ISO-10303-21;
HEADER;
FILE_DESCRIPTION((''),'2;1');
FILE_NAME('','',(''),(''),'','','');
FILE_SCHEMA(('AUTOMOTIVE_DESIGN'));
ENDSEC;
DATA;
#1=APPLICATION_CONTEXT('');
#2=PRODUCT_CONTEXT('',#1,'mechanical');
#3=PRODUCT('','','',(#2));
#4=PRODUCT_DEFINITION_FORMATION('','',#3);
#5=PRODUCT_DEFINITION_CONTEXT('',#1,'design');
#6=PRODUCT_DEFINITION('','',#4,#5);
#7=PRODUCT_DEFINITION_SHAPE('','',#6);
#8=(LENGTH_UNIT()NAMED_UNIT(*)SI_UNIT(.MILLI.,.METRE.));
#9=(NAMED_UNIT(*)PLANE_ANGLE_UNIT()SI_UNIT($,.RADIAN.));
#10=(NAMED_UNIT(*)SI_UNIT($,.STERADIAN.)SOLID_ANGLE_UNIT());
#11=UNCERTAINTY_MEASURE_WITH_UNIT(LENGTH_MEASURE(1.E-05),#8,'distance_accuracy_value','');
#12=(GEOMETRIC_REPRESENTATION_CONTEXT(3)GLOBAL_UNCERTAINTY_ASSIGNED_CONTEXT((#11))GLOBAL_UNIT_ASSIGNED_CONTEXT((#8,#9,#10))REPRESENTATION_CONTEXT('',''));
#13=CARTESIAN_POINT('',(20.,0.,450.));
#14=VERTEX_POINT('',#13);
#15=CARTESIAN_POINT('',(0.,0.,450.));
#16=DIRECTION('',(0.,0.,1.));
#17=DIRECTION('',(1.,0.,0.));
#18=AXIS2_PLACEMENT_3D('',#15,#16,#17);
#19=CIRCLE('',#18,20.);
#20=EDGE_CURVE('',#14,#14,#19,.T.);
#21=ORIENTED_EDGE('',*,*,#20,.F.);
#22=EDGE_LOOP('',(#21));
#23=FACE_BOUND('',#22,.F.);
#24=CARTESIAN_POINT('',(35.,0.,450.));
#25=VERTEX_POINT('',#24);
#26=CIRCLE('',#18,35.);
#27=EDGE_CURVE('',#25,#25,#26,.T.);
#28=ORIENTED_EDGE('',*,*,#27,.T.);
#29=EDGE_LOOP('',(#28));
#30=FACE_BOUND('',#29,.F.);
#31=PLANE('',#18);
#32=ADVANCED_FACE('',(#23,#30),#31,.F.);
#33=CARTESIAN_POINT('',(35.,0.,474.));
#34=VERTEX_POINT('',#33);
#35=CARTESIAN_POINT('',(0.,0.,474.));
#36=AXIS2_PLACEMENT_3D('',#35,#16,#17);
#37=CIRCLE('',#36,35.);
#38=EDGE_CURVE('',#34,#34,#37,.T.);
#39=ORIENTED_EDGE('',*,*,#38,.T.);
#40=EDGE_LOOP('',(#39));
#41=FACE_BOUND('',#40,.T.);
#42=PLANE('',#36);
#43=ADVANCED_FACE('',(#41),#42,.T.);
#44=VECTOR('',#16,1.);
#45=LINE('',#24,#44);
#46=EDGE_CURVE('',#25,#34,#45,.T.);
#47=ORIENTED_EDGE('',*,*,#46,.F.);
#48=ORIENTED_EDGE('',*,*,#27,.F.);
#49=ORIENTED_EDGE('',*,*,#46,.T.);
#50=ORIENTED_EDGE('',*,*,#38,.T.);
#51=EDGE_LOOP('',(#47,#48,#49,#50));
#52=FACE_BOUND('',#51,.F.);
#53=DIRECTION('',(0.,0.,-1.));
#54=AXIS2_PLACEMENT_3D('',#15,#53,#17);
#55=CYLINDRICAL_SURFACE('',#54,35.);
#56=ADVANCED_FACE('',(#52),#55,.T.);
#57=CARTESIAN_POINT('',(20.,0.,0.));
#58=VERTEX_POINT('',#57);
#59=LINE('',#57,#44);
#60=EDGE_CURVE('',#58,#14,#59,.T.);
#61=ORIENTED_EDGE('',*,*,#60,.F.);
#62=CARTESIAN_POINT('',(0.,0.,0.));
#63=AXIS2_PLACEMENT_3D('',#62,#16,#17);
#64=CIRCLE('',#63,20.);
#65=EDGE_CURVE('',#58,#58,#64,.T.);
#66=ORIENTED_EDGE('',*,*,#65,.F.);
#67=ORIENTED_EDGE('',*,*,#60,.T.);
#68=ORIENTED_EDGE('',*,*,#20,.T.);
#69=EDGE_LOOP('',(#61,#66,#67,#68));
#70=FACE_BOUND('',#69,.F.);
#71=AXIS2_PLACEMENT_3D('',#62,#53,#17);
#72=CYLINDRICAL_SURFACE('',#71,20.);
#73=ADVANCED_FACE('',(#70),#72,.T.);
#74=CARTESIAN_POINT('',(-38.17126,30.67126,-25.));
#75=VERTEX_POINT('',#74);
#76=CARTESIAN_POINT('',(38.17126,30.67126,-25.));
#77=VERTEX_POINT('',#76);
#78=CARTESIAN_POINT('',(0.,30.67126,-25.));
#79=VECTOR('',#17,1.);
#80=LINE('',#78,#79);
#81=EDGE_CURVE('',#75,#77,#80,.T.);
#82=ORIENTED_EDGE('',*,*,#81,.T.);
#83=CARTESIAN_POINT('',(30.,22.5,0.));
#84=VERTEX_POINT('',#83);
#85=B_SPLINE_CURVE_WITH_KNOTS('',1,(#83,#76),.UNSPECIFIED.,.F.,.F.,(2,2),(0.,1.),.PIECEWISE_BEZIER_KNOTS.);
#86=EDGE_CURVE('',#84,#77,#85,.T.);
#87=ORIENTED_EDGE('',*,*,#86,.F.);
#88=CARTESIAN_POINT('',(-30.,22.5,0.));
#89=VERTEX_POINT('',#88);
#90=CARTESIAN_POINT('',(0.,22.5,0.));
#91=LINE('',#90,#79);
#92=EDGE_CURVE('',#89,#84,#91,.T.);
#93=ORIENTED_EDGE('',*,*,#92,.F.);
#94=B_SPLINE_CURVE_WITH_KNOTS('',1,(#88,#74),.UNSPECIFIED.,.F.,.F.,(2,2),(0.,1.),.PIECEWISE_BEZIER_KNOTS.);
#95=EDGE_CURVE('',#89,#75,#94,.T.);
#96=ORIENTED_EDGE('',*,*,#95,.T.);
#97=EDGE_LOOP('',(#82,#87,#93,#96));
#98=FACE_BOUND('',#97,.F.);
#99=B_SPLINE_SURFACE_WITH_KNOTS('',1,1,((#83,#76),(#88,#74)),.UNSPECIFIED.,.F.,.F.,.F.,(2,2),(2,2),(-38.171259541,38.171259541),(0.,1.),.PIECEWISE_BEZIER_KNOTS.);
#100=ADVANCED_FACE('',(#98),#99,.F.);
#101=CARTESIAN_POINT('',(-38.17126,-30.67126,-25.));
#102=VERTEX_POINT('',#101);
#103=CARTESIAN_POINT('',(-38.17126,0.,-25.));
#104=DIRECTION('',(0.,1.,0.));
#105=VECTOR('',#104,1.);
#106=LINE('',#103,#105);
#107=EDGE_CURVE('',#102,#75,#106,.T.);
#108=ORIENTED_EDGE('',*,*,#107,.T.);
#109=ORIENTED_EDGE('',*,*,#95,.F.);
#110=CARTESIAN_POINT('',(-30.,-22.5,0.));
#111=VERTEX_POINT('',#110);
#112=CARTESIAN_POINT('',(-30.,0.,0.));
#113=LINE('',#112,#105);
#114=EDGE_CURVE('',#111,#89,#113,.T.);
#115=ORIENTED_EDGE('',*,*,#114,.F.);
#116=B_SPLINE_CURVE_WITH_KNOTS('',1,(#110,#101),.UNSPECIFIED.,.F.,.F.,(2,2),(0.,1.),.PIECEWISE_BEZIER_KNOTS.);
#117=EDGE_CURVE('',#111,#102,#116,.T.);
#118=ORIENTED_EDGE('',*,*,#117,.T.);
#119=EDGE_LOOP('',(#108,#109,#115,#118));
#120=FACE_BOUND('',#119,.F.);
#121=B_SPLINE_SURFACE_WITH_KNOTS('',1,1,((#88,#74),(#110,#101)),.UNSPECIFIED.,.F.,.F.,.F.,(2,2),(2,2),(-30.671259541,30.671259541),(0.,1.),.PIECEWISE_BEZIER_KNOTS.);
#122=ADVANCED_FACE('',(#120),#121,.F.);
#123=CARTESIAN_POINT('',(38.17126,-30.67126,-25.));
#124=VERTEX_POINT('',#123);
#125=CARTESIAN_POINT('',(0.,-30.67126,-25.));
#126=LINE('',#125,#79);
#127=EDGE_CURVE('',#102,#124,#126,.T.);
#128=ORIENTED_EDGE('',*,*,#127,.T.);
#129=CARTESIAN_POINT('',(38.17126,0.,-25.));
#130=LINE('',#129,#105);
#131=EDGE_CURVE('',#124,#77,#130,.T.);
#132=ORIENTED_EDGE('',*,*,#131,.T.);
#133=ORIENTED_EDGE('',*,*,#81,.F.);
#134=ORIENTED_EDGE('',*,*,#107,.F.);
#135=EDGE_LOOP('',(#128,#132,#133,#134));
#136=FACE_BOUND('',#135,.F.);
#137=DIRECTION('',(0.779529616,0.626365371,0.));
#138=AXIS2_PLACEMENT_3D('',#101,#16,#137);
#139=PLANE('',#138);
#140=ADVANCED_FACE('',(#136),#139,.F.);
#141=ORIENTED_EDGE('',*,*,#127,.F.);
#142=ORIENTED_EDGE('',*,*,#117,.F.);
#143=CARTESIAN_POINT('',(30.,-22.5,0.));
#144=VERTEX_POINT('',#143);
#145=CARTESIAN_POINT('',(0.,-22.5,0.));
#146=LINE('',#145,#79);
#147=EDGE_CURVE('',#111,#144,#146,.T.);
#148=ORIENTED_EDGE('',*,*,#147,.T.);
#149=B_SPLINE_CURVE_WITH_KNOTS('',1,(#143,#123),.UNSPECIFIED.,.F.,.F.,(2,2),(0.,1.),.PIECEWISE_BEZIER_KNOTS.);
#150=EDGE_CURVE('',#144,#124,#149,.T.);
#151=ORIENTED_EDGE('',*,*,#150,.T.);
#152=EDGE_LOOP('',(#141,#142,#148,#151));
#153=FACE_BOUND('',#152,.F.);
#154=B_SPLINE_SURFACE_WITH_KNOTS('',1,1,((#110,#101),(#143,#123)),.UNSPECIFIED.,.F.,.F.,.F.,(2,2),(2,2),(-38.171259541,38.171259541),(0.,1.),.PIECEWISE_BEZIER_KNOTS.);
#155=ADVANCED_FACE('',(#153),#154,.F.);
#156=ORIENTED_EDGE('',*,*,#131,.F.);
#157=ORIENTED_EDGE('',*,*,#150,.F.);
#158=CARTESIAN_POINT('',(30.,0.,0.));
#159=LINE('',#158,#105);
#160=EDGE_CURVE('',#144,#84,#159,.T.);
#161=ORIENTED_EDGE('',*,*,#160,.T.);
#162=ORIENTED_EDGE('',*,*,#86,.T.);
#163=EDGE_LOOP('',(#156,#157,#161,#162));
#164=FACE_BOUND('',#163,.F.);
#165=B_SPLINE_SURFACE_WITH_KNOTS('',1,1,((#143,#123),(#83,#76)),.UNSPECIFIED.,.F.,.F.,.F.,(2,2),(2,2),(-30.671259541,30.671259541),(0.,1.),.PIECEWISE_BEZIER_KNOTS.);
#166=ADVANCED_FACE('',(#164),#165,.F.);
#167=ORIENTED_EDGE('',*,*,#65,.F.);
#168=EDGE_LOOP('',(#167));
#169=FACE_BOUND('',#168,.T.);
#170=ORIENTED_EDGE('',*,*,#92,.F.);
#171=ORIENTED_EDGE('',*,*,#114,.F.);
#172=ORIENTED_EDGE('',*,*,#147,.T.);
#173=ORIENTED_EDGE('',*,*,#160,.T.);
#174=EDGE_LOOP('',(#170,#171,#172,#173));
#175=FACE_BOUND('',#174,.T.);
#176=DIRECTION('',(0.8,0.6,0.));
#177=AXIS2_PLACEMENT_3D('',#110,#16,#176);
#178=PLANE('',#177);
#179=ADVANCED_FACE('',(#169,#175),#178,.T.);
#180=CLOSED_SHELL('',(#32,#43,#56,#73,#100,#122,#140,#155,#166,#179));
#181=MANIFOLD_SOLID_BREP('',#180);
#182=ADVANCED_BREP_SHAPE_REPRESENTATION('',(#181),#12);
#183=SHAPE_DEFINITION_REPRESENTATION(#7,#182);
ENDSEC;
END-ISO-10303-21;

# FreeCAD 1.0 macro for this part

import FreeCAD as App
import Part
import Sketcher
Q = App.Units.Quantity

doc = App.newDocument("Part")
body = doc.addObject("PartDesign::Body", "Body")

# Sketch on XY plane
sketch1 = doc.addObject("Sketcher::SketchObject", "Sketch")
body.addObject(sketch1)
sketch1.AttachmentSupport = (doc.XY_Plane, [""])
sketch1.MapMode = "FlatFace"
sketch1.addGeometry(Part.Circle(App.Vector(0, 0, 0), App.Vector(0, 0, 1), 20), False)
sketch1.addConstraint(Sketcher.Constraint("Coincident", 0, 3, -1, 1))
sketch1.addConstraint(Sketcher.Constraint("Diameter", 0, Q("40 mm")))
pad1 = doc.addObject("PartDesign::Pad", "Pad")
body.addObject(pad1)
pad1.Profile = sketch1
pad1.Length = 450

# Sketch on XY plane
sketch2 = doc.addObject("Sketcher::SketchObject", "Sketch001")
body.addObject(sketch2)
sketch2.AttachmentSupport = (doc.XY_Plane, [""])
sketch2.MapMode = "FlatFace"
sketch2.AttachmentOffset = App.Placement(App.Vector(0, 0, 450), App.Rotation())
sketch2.addGeometry(Part.Circle(App.Vector(0, 0, 0), App.Vector(0, 0, 1), 35), False)
sketch2.addConstraint(Sketcher.Constraint("Coincident", 0, 3, -1, 1))
sketch2.addConstraint(Sketcher.Constraint("Diameter", 0, Q("70 mm")))
pad2 = doc.addObject("PartDesign::Pad", "Pad001")
body.addObject(pad2)
pad2.Profile = sketch2
pad2.Length = 24

# Sketch on XY plane
sketch3 = doc.addObject("Sketcher::SketchObject", "Sketch002")
body.addObject(sketch3)
sketch3.AttachmentSupport = (doc.XY_Plane, [""])
sketch3.MapMode = "FlatFace"
sketch3.addGeometry(Part.LineSegment(App.Vector(-30, 22, 0), App.Vector(-30, -22, 0)), False)
sketch3.addGeometry(Part.LineSegment(App.Vector(-30, -22, 0), App.Vector(30, -22, 0)), False)
sketch3.addGeometry(Part.LineSegment(App.Vector(30, -22, 0), App.Vector(30, 22, 0)), False)
sketch3.addGeometry(Part.LineSegment(App.Vector(30, 22, 0), App.Vector(-30, 22, 0)), False)
sketch3.addConstraint(Sketcher.Constraint("Coincident", 0, 2, 1, 1))
sketch3.addConstraint(Sketcher.Constraint("Coincident", 1, 2, 2, 1))
sketch3.addConstraint(Sketcher.Constraint("Coincident", 2, 2, 3, 1))
sketch3.addConstraint(Sketcher.Constraint("Coincident", 3, 2, 0, 1))
sketch3.addConstraint(Sketcher.Constraint("Vertical", 0))
sketch3.addConstraint(Sketcher.Constraint("Horizontal", 1))
sketch3.addConstraint(Sketcher.Constraint("Vertical", 2))
sketch3.addConstraint(Sketcher.Constraint("Horizontal", 3))
sketch3.addConstraint(Sketcher.Constraint("Symmetric", 0, 2, 2, 2, -1, 1))
sketch3.addConstraint(Sketcher.Constraint("DistanceX", 1, 1, 1, 2, Q("60 mm")))
sketch3.addConstraint(Sketcher.Constraint("DistanceY", 0, 2, 0, 1, Q("45 mm")))
pad3 = doc.addObject("PartDesign::Pad", "Pad002")
body.addObject(pad3)
pad3.Profile = sketch3
pad3.Length = 25
pad3.Reversed = True
pad3.TaperAngle = 18.1

doc.recompute()
